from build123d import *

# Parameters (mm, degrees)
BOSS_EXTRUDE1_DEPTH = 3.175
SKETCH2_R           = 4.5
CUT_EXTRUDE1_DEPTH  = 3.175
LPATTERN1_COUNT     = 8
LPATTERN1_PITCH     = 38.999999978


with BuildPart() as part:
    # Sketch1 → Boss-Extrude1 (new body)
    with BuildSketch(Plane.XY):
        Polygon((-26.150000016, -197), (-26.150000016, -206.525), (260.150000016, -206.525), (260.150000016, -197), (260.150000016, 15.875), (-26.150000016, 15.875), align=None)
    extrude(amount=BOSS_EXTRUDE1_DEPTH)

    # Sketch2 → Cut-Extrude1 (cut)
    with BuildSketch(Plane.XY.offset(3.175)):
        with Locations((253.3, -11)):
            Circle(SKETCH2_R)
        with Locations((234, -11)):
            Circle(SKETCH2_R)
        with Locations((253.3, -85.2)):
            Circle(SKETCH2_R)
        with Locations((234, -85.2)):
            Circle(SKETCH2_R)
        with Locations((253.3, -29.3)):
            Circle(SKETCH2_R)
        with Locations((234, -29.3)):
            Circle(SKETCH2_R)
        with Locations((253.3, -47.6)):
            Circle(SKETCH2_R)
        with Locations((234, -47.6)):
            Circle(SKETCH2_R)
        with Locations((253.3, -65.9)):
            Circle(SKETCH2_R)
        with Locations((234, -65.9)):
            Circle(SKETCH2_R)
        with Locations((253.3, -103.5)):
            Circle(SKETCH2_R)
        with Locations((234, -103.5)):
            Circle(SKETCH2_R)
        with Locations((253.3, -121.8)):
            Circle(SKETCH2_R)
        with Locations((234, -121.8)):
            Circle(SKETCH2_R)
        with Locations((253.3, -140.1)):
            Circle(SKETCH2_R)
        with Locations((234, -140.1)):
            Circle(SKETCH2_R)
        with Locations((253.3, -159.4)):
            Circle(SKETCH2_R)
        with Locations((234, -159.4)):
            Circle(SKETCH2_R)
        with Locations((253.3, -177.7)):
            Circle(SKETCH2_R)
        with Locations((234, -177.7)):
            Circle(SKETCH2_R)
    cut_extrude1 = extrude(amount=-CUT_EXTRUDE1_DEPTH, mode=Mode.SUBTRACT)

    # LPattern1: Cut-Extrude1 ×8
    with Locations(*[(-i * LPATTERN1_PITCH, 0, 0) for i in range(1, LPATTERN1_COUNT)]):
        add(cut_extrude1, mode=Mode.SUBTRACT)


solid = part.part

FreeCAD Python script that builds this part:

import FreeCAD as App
import Part
import Sketcher

V = App.Vector
Q = App.Units.Quantity


def add_polygon(sketch, points):
    """Adds a closed chain of lines whose ends are joined by coincident constraints."""
    first, n = sketch.GeometryCount, len(points)
    for a, b in zip(points, points[1:] + points[:1]):
        sketch.addGeometry(Part.LineSegment(App.Vector(*a, 0), App.Vector(*b, 0)), False)
    for i in range(n):
        sketch.addConstraint(Sketcher.Constraint("Coincident", first + i, 2, first + (i + 1) % n, 1))

doc = App.newDocument("Part")
body = doc.addObject("PartDesign::Body", "Body")

# Sketch on XY plane
sketch1 = body.newObject("Sketcher::SketchObject", "Sketch")
sketch1.AttachmentSupport = (doc.getObject("XY_Plane"), [""])
sketch1.MapMode = "FlatFace"
add_polygon(sketch1, [(-26, -207), (260, -207), (260, 16), (-26, 16)])  # lines 0-3
sketch1.addConstraint(Sketcher.Constraint("Horizontal", 0))
sketch1.addConstraint(Sketcher.Constraint("Vertical", 1))
sketch1.addConstraint(Sketcher.Constraint("Horizontal", 2))
sketch1.addConstraint(Sketcher.Constraint("Vertical", 3))
sketch1.addConstraint(Sketcher.Constraint("DistanceX", 0, 1, 0, 2, Q("286.3 mm")))
sketch1.addConstraint(Sketcher.Constraint("DistanceY", 1, 1, 1, 2, Q("222.4 mm")))
sketch1.addConstraint(Sketcher.Constraint("DistanceX", -1, 1, 0, 2, Q("260.15 mm")))
sketch1.addConstraint(Sketcher.Constraint("DistanceY", 0, 2, -1, 1, Q("206.525 mm")))
pad1 = body.newObject("PartDesign::Pad", "Pad")
pad1.Profile = sketch1
pad1.Length = 3.175

# Sketch on XY plane
sketch2 = body.newObject("Sketcher::SketchObject", "Sketch001")
sketch2.AttachmentSupport = (doc.getObject("XY_Plane"), [""])
sketch2.MapMode = "FlatFace"
sketch2.AttachmentOffset = App.Placement(V(0, 0, 3.175), App.Rotation())
sketch2.addGeometry(Part.Circle(V(253.3, -11, 0), V(0, 0, 1), 4.5), False)
sketch2.addGeometry(Part.Circle(V(234, -11, 0), V(0, 0, 1), 4.5), False)
sketch2.addGeometry(Part.Circle(V(253.3, -85.2, 0), V(0, 0, 1), 4.5), False)
sketch2.addGeometry(Part.Circle(V(234, -85.2, 0), V(0, 0, 1), 4.5), False)
sketch2.addGeometry(Part.Circle(V(253.3, -29.3, 0), V(0, 0, 1), 4.5), False)
sketch2.addGeometry(Part.Circle(V(234, -29.3, 0), V(0, 0, 1), 4.5), False)
sketch2.addGeometry(Part.Circle(V(253.3, -47.6, 0), V(0, 0, 1), 4.5), False)
sketch2.addGeometry(Part.Circle(V(234, -47.6, 0), V(0, 0, 1), 4.5), False)
sketch2.addGeometry(Part.Circle(V(253.3, -65.9, 0), V(0, 0, 1), 4.5), False)
sketch2.addGeometry(Part.Circle(V(234, -65.9, 0), V(0, 0, 1), 4.5), False)
sketch2.addGeometry(Part.Circle(V(253.3, -103.5, 0), V(0, 0, 1), 4.5), False)
sketch2.addGeometry(Part.Circle(V(234, -103.5, 0), V(0, 0, 1), 4.5), False)
sketch2.addGeometry(Part.Circle(V(253.3, -121.8, 0), V(0, 0, 1), 4.5), False)
sketch2.addGeometry(Part.Circle(V(234, -121.8, 0), V(0, 0, 1), 4.5), False)
sketch2.addGeometry(Part.Circle(V(253.3, -140.1, 0), V(0, 0, 1), 4.5), False)
sketch2.addGeometry(Part.Circle(V(234, -140.1, 0), V(0, 0, 1), 4.5), False)
sketch2.addGeometry(Part.Circle(V(253.3, -159.4, 0), V(0, 0, 1), 4.5), False)
sketch2.addGeometry(Part.Circle(V(234, -159.4, 0), V(0, 0, 1), 4.5), False)
sketch2.addGeometry(Part.Circle(V(253.3, -177.7, 0), V(0, 0, 1), 4.5), False)
sketch2.addGeometry(Part.Circle(V(234, -177.7, 0), V(0, 0, 1), 4.5), False)
sketch2.addConstraint(Sketcher.Constraint("Equal", 0, 1))
sketch2.addConstraint(Sketcher.Constraint("Equal", 1, 2))
sketch2.addConstraint(Sketcher.Constraint("Equal", 2, 3))
sketch2.addConstraint(Sketcher.Constraint("Equal", 3, 4))
sketch2.addConstraint(Sketcher.Constraint("Equal", 4, 5))
sketch2.addConstraint(Sketcher.Constraint("Equal", 5, 6))
sketch2.addConstraint(Sketcher.Constraint("Equal", 6, 7))
sketch2.addConstraint(Sketcher.Constraint("Equal", 7, 8))
sketch2.addConstraint(Sketcher.Constraint("Equal", 8, 9))
sketch2.addConstraint(Sketcher.Constraint("Equal", 9, 10))
sketch2.addConstraint(Sketcher.Constraint("Equal", 10, 11))
sketch2.addConstraint(Sketcher.Constraint("Equal", 11, 12))
sketch2.addConstraint(Sketcher.Constraint("Equal", 12, 13))
sketch2.addConstraint(Sketcher.Constraint("Equal", 13, 14))
sketch2.addConstraint(Sketcher.Constraint("Equal", 14, 15))
sketch2.addConstraint(Sketcher.Constraint("Equal", 15, 16))
sketch2.addConstraint(Sketcher.Constraint("Equal", 16, 17))
sketch2.addConstraint(Sketcher.Constraint("Equal", 17, 18))
sketch2.addConstraint(Sketcher.Constraint("Equal", 18, 19))
sketch2.addConstraint(Sketcher.Constraint("Horizontal", 0, 3, 1, 3))
sketch2.addConstraint(Sketcher.Constraint("Horizontal", 2, 3, 3, 3))
sketch2.addConstraint(Sketcher.Constraint("Horizontal", 4, 3, 5, 3))
sketch2.addConstraint(Sketcher.Constraint("Horizontal", 6, 3, 7, 3))
sketch2.addConstraint(Sketcher.Constraint("Horizontal", 8, 3, 9, 3))
sketch2.addConstraint(Sketcher.Constraint("Horizontal", 10, 3, 11, 3))
sketch2.addConstraint(Sketcher.Constraint("Horizontal", 12, 3, 13, 3))
sketch2.addConstraint(Sketcher.Constraint("Horizontal", 14, 3, 15, 3))
sketch2.addConstraint(Sketcher.Constraint("Horizontal", 16, 3, 17, 3))
sketch2.addConstraint(Sketcher.Constraint("Horizontal", 18, 3, 19, 3))
sketch2.addConstraint(Sketcher.Constraint("Vertical", 0, 3, 2, 3))
sketch2.addConstraint(Sketcher.Constraint("Vertical", 1, 3, 3, 3))
sketch2.addConstraint(Sketcher.Constraint("Vertical", 2, 3, 4, 3))
sketch2.addConstraint(Sketcher.Constraint("Vertical", 3, 3, 5, 3))
sketch2.addConstraint(Sketcher.Constraint("Vertical", 4, 3, 6, 3))
sketch2.addConstraint(Sketcher.Constraint("Vertical", 5, 3, 7, 3))
sketch2.addConstraint(Sketcher.Constraint("Vertical", 6, 3, 8, 3))
sketch2.addConstraint(Sketcher.Constraint("Vertical", 7, 3, 9, 3))
sketch2.addConstraint(Sketcher.Constraint("Vertical", 8, 3, 10, 3))
sketch2.addConstraint(Sketcher.Constraint("Vertical", 9, 3, 11, 3))
sketch2.addConstraint(Sketcher.Constraint("Vertical", 10, 3, 12, 3))
sketch2.addConstraint(Sketcher.Constraint("Vertical", 11, 3, 13, 3))
sketch2.addConstraint(Sketcher.Constraint("Vertical", 12, 3, 14, 3))
sketch2.addConstraint(Sketcher.Constraint("Vertical", 13, 3, 15, 3))
sketch2.addConstraint(Sketcher.Constraint("Vertical", 14, 3, 16, 3))
sketch2.addConstraint(Sketcher.Constraint("Vertical", 15, 3, 17, 3))
sketch2.addConstraint(Sketcher.Constraint("Vertical", 16, 3, 18, 3))
sketch2.addConstraint(Sketcher.Constraint("Vertical", 17, 3, 19, 3))
sketch2.addConstraint(Sketcher.Constraint("Diameter", 0, Q("9 mm")))
sketch2.addConstraint(Sketcher.Constraint("DistanceY", 0, 3, -1, 1, Q("11 mm")))
sketch2.addConstraint(Sketcher.Constraint("DistanceX", -1, 1, 1, 3, Q("234 mm")))
sketch2.addConstraint(Sketcher.Constraint("DistanceX", -1, 1, 0, 3, Q("253.3 mm")))
sketch2.addConstraint(Sketcher.Constraint("DistanceY", 2, 3, -1, 1, Q("85.2 mm")))
sketch2.addConstraint(Sketcher.Constraint("DistanceY", 4, 3, -1, 1, Q("29.3 mm")))
sketch2.addConstraint(Sketcher.Constraint("DistanceY", 6, 3, -1, 1, Q("47.6 mm")))
sketch2.addConstraint(Sketcher.Constraint("DistanceY", 8, 3, -1, 1, Q("65.9 mm")))
sketch2.addConstraint(Sketcher.Constraint("DistanceY", 10, 3, -1, 1, Q("103.5 mm")))
sketch2.addConstraint(Sketcher.Constraint("DistanceY", 12, 3, -1, 1, Q("121.8 mm")))
sketch2.addConstraint(Sketcher.Constraint("DistanceY", 14, 3, -1, 1, Q("140.1 mm")))
sketch2.addConstraint(Sketcher.Constraint("DistanceY", 16, 3, -1, 1, Q("159.4 mm")))
sketch2.addConstraint(Sketcher.Constraint("DistanceY", 18, 3, -1, 1, Q("177.7 mm")))
pocket1 = body.newObject("PartDesign::Pocket", "Pocket")
pocket1.Profile = sketch2
pocket1.Length = 3.175
doc.recompute()

linearpattern = body.newObject("PartDesign::LinearPattern", "LinearPattern")
linearpattern.Originals = [pocket1]
linearpattern.Direction = (doc.getObject("X_Axis"), [""])
linearpattern.Mode = "offset"
linearpattern.Offset = 39
linearpattern.Occurrences = 8
linearpattern.Reversed = True
body.Tip = linearpattern

doc.recompute()
